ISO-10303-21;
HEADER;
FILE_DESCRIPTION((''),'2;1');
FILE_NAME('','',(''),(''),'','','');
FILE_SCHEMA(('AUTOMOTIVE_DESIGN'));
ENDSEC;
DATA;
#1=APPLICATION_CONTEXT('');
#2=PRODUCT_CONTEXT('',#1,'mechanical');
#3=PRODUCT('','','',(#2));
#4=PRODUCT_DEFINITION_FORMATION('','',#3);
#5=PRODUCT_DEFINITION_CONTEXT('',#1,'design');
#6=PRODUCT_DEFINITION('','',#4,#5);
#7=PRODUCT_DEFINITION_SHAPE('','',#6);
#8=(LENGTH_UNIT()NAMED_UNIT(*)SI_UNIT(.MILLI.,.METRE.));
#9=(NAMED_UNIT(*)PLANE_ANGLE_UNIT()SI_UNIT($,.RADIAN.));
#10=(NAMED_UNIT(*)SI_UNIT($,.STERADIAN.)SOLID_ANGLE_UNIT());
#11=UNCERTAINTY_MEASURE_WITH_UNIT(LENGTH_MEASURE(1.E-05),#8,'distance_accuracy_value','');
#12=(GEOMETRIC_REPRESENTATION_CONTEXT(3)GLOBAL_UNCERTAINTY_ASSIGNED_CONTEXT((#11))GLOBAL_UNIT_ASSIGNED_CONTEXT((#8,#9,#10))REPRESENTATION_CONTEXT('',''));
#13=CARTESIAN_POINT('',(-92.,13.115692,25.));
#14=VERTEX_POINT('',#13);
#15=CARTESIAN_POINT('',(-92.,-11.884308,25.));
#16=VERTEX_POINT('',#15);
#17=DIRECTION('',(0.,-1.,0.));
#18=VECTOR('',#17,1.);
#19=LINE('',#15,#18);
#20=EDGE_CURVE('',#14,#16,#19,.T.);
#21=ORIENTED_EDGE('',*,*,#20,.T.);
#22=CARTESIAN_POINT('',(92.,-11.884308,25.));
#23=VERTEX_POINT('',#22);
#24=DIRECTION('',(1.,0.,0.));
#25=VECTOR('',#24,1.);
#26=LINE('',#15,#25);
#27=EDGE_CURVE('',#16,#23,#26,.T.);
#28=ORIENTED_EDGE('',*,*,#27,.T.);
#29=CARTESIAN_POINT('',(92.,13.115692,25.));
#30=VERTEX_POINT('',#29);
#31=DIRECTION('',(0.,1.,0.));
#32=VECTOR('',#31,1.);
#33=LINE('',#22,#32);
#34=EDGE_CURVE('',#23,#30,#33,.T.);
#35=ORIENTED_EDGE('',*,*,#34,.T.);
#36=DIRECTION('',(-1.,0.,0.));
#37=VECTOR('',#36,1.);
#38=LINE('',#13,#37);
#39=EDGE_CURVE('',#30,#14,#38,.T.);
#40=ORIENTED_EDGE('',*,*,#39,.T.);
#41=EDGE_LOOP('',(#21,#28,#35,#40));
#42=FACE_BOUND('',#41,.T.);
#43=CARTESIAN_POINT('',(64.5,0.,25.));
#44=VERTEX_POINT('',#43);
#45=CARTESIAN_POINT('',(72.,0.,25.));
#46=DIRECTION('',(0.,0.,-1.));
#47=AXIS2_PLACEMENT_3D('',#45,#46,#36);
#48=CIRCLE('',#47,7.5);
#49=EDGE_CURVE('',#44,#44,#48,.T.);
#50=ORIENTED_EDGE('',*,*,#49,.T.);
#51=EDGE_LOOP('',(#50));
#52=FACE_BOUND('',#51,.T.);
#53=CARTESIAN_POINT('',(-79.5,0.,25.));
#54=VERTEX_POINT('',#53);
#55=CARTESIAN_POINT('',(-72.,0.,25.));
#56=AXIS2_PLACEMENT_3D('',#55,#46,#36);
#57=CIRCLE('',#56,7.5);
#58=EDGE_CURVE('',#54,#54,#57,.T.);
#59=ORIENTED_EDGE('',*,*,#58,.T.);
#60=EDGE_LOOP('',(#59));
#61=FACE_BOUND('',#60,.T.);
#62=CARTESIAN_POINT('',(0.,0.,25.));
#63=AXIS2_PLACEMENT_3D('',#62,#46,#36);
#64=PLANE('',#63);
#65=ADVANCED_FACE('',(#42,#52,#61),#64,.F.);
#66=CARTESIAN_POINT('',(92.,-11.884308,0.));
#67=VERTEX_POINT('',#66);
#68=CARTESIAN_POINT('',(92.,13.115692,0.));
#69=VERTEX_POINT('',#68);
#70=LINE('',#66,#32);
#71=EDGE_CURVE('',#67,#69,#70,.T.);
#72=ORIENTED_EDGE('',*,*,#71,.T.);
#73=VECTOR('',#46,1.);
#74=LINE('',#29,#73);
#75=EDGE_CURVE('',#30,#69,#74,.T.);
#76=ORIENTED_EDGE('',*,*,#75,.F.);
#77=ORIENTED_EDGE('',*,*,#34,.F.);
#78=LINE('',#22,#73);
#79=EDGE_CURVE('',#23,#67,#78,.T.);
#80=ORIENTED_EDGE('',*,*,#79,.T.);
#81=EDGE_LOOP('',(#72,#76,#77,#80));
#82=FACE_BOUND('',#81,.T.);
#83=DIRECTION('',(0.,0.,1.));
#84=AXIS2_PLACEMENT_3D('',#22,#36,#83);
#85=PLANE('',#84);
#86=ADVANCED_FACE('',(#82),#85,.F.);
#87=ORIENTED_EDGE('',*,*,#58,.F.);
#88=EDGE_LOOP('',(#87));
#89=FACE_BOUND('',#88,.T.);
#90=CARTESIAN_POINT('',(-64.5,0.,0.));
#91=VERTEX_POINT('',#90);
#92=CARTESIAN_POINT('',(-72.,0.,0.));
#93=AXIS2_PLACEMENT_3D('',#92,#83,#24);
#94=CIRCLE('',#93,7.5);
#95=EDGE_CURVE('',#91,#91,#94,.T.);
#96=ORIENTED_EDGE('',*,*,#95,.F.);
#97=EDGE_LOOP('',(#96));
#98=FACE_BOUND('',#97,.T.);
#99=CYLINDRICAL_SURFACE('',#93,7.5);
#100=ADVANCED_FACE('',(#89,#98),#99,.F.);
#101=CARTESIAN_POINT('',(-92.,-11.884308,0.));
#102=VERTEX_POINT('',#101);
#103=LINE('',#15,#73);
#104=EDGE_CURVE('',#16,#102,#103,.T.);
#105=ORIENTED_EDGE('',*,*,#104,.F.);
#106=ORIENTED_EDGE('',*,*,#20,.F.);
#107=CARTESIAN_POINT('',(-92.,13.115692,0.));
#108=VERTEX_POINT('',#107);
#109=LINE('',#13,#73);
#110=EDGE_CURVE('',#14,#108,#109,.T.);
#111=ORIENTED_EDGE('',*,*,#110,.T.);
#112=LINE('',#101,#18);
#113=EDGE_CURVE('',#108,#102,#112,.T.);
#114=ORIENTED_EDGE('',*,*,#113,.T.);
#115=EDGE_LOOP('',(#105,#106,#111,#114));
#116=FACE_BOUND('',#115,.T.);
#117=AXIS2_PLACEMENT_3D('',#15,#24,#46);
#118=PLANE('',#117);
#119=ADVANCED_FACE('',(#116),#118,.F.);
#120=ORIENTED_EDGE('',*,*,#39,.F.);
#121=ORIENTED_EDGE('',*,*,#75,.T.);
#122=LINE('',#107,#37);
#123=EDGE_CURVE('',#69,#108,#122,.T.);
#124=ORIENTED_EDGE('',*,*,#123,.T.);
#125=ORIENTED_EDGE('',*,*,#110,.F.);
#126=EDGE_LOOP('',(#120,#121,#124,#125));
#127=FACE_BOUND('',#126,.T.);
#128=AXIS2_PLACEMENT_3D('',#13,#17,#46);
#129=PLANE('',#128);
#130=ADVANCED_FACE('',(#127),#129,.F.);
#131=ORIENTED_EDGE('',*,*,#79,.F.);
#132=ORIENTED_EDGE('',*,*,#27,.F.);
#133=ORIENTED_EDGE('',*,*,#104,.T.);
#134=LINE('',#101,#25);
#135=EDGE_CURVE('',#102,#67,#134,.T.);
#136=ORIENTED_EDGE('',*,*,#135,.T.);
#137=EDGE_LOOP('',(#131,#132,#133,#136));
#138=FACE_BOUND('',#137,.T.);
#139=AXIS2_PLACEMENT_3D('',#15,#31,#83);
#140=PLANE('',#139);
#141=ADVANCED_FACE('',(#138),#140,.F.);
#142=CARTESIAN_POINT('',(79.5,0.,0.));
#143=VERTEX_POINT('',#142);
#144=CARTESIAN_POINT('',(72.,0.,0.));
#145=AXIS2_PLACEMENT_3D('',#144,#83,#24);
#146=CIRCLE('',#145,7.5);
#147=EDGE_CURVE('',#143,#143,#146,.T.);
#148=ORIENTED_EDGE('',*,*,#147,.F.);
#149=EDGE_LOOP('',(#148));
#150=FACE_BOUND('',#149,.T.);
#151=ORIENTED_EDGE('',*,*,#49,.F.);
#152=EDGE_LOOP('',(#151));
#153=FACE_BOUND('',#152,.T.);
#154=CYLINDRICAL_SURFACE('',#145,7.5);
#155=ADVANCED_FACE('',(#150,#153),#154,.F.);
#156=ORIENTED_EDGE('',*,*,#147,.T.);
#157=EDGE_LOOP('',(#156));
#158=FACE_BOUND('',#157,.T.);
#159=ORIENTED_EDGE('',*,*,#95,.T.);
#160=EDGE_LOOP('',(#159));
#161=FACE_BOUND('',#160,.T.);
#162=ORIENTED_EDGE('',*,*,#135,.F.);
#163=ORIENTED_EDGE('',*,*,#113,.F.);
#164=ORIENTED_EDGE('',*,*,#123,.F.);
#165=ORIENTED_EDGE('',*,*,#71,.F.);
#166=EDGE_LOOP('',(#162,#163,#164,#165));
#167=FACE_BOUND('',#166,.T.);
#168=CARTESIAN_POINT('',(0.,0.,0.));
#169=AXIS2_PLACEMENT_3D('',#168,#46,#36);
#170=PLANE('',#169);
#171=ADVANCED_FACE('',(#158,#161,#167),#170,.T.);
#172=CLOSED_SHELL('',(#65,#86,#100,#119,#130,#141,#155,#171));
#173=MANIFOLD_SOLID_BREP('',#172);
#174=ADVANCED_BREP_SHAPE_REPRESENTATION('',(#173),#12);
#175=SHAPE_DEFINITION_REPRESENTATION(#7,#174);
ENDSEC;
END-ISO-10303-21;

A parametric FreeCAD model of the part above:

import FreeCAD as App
import Part
import Sketcher
from FreeCAD import Vector

doc = App.newDocument("Part")
body = doc.addObject("PartDesign::Body", "Body")

# Sketch on XY plane
sketch1 = doc.addObject("Sketcher::SketchObject", "Sketch")
body.addObject(sketch1)
sketch1.AttachmentSupport = (doc.XY_Plane, [""])
sketch1.MapMode = "FlatFace"
sketch1.addGeometry([
    Part.LineSegment(Vector(-92, 13, 0), Vector(-92, -12, 0)),
    Part.LineSegment(Vector(-92, -12, 0), Vector(92, -12, 0)),
    Part.LineSegment(Vector(92, -12, 0), Vector(92, 13, 0)),
    Part.LineSegment(Vector(92, 13, 0), Vector(-92, 13, 0)),
], False)
sketch1.addConstraint([
    Sketcher.Constraint("Coincident", 0, 2, 1, 1),
    Sketcher.Constraint("Coincident", 1, 2, 2, 1),
    Sketcher.Constraint("Coincident", 2, 2, 3, 1),
    Sketcher.Constraint("Coincident", 3, 2, 0, 1),
    Sketcher.Constraint("Vertical", 0),
    Sketcher.Constraint("Horizontal", 1),
    Sketcher.Constraint("Vertical", 2),
    Sketcher.Constraint("Horizontal", 3),
    Sketcher.Constraint("DistanceX", 1, 1, 1, 2, 184.0),
    Sketcher.Constraint("DistanceY", 0, 2, 0, 1, 25.0),
    Sketcher.Constraint("DistanceX", 0, 2, -1, 1, 92.0),
    Sketcher.Constraint("DistanceY", 0, 2, -1, 1, 11.884308),
])
pad1 = doc.addObject("PartDesign::Pad", "Pad")
body.addObject(pad1)
pad1.Profile = sketch1
pad1.Length = 25

# Sketch on XY plane
sketch2 = doc.addObject("Sketcher::SketchObject", "Sketch001")
body.addObject(sketch2)
sketch2.AttachmentSupport = (doc.XY_Plane, [""])
sketch2.MapMode = "FlatFace"
sketch2.AttachmentOffset = App.Placement(Vector(0, 0, 25), App.Rotation())
sketch2.addGeometry([
    Part.Circle(Vector(-72, 0, 0), Vector(0, 0, 1), 8),
    Part.Circle(Vector(72, 0, 0), Vector(0, 0, 1), 8),
], False)
sketch2.addConstraint([
    Sketcher.Constraint("Equal", 0, 1),
    Sketcher.Constraint("Symmetric", 0, 3, 1, 3, -1, 1),
    Sketcher.Constraint("PointOnObject", 0, 3, -1),
    Sketcher.Constraint("Diameter", 0, 15.0),
    Sketcher.Constraint("DistanceX", 0, 3, -1, 1, 72.0),
])
pocket1 = doc.addObject("PartDesign::Pocket", "Pocket")
body.addObject(pocket1)
pocket1.Profile = sketch2
pocket1.Type = "ThroughAll"
pocket1.Midplane = True

doc.recompute()
